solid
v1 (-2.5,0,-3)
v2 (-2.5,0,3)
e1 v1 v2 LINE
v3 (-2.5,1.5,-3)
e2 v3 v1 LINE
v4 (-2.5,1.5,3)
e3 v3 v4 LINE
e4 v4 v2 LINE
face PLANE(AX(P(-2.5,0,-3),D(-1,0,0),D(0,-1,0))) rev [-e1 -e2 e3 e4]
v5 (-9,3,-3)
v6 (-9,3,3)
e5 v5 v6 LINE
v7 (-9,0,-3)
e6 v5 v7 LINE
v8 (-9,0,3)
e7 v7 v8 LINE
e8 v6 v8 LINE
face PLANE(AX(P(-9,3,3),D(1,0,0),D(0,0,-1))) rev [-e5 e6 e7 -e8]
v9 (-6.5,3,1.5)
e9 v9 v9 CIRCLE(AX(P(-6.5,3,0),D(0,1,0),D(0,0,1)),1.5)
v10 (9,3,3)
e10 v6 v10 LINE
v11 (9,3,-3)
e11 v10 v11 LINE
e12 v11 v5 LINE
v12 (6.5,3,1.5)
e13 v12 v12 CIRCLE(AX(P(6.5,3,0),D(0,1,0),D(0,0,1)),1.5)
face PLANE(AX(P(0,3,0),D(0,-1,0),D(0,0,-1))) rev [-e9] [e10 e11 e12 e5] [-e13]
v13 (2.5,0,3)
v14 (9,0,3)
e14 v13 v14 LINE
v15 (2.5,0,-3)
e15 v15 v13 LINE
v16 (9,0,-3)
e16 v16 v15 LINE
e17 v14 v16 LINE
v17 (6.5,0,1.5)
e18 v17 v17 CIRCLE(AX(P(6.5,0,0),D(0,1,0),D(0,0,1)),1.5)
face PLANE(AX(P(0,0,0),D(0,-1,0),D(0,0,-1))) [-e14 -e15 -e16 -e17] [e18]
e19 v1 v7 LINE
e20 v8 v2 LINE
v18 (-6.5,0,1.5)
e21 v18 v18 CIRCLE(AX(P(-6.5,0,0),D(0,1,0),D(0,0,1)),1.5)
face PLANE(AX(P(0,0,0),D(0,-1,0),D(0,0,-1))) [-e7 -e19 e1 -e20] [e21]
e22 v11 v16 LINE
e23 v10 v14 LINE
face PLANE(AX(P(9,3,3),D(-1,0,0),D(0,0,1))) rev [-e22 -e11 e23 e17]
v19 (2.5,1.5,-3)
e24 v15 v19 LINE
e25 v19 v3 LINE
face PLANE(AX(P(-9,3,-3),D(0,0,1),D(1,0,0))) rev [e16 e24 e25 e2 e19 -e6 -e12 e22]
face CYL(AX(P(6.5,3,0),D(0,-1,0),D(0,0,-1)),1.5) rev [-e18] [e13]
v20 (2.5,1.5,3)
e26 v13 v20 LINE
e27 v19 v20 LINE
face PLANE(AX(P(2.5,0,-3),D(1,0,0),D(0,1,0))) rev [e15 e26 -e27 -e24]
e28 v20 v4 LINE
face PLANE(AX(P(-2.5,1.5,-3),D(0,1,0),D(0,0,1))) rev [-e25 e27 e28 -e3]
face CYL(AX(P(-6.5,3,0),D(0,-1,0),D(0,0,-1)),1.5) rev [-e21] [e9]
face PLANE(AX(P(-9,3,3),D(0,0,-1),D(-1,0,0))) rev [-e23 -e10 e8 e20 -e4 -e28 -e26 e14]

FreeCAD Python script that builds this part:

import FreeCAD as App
import Part
import Sketcher

doc = App.newDocument("Part")
body = doc.addObject("PartDesign::Body", "Body")

# Sketch on XZ plane
sketch1 = doc.addObject("Sketcher::SketchObject", "Sketch")
body.addObject(sketch1)
sketch1.AttachmentSupport = (doc.XZ_Plane, [""])
sketch1.MapMode = "FlatFace"
sketch1.addGeometry([
    Part.LineSegment(App.Vector(-9, -3, 0), App.Vector(-9, 3, 0)),  # 0
    Part.LineSegment(App.Vector(-9, 3, 0), App.Vector(9, 3, 0)),  # 1
    Part.LineSegment(App.Vector(9, 3, 0), App.Vector(9, -3, 0)),  # 2
    Part.LineSegment(App.Vector(9, -3, 0), App.Vector(-9, -3, 0)),  # 3
    Part.Circle(App.Vector(-6.5, 0, 0), App.Vector(0, 0, 1), 1.5),  # 4
    Part.Circle(App.Vector(6.5, 0, 0), App.Vector(0, 0, 1), 1.5),  # 5
], False)
sketch1.addConstraint([
    Sketcher.Constraint("Coincident", 0, 2, 1, 1),
    Sketcher.Constraint("Coincident", 1, 2, 2, 1),
    Sketcher.Constraint("Coincident", 2, 2, 3, 1),
    Sketcher.Constraint("Coincident", 3, 2, 0, 1),
    Sketcher.Constraint("Vertical", 0),
    Sketcher.Constraint("Horizontal", 1),
    Sketcher.Constraint("Vertical", 2),
    Sketcher.Constraint("Horizontal", 3),
    Sketcher.Constraint("Equal", 4, 5),
    Sketcher.Constraint("Symmetric", 4, 3, 5, 3, -1, 1),
    Sketcher.Constraint("Symmetric", 0, 2, 2, 2, -1, 1),
    Sketcher.Constraint("PointOnObject", 4, 3, -1),
    Sketcher.Constraint("Diameter", 4, 3.0),
    Sketcher.Constraint("DistanceX", 1, 1, 1, 2, 18.0),
    Sketcher.Constraint("DistanceY", 0, 1, 0, 2, 6.0),
    Sketcher.Constraint("DistanceX", 4, 3, 5, 3, 13.0),
])
pad1 = doc.addObject("PartDesign::Pad", "Pad")
body.addObject(pad1)
pad1.Profile = sketch1
pad1.Length = 3
pad1.Reversed = True

# Sketch on XY plane
sketch2 = doc.addObject("Sketcher::SketchObject", "Sketch001")
body.addObject(sketch2)
sketch2.AttachmentSupport = (doc.XY_Plane, [""])
sketch2.MapMode = "FlatFace"
sketch2.AttachmentOffset = App.Placement(App.Vector(0, 0, 3), App.Rotation())
sketch2.addGeometry([
    Part.LineSegment(App.Vector(-2.5, 1.5, 0), App.Vector(-2.5, 0, 0)),
    Part.LineSegment(App.Vector(-2.5, 0, 0), App.Vector(2.5, 0, 0)),
    Part.LineSegment(App.Vector(2.5, 0, 0), App.Vector(2.5, 1.5, 0)),
    Part.LineSegment(App.Vector(2.5, 1.5, 0), App.Vector(-2.5, 1.5, 0)),
], False)
sketch2.addConstraint([
    Sketcher.Constraint("Coincident", 0, 2, 1, 1),
    Sketcher.Constraint("Coincident", 1, 2, 2, 1),
    Sketcher.Constraint("Coincident", 2, 2, 3, 1),
    Sketcher.Constraint("Coincident", 3, 2, 0, 1),
    Sketcher.Constraint("Vertical", 0),
    Sketcher.Constraint("Horizontal", 1),
    Sketcher.Constraint("Vertical", 2),
    Sketcher.Constraint("Horizontal", 3),
    Sketcher.Constraint("Symmetric", 0, 2, 1, 2, -1, 1),
    Sketcher.Constraint("DistanceX", 1, 1, 1, 2, 5.0),
    Sketcher.Constraint("DistanceY", 0, 2, 0, 1, 1.5),
])
pocket1 = doc.addObject("PartDesign::Pocket", "Pocket")
body.addObject(pocket1)
pocket1.Profile = sketch2
pocket1.Type = "ThroughAll"

doc.recompute()
